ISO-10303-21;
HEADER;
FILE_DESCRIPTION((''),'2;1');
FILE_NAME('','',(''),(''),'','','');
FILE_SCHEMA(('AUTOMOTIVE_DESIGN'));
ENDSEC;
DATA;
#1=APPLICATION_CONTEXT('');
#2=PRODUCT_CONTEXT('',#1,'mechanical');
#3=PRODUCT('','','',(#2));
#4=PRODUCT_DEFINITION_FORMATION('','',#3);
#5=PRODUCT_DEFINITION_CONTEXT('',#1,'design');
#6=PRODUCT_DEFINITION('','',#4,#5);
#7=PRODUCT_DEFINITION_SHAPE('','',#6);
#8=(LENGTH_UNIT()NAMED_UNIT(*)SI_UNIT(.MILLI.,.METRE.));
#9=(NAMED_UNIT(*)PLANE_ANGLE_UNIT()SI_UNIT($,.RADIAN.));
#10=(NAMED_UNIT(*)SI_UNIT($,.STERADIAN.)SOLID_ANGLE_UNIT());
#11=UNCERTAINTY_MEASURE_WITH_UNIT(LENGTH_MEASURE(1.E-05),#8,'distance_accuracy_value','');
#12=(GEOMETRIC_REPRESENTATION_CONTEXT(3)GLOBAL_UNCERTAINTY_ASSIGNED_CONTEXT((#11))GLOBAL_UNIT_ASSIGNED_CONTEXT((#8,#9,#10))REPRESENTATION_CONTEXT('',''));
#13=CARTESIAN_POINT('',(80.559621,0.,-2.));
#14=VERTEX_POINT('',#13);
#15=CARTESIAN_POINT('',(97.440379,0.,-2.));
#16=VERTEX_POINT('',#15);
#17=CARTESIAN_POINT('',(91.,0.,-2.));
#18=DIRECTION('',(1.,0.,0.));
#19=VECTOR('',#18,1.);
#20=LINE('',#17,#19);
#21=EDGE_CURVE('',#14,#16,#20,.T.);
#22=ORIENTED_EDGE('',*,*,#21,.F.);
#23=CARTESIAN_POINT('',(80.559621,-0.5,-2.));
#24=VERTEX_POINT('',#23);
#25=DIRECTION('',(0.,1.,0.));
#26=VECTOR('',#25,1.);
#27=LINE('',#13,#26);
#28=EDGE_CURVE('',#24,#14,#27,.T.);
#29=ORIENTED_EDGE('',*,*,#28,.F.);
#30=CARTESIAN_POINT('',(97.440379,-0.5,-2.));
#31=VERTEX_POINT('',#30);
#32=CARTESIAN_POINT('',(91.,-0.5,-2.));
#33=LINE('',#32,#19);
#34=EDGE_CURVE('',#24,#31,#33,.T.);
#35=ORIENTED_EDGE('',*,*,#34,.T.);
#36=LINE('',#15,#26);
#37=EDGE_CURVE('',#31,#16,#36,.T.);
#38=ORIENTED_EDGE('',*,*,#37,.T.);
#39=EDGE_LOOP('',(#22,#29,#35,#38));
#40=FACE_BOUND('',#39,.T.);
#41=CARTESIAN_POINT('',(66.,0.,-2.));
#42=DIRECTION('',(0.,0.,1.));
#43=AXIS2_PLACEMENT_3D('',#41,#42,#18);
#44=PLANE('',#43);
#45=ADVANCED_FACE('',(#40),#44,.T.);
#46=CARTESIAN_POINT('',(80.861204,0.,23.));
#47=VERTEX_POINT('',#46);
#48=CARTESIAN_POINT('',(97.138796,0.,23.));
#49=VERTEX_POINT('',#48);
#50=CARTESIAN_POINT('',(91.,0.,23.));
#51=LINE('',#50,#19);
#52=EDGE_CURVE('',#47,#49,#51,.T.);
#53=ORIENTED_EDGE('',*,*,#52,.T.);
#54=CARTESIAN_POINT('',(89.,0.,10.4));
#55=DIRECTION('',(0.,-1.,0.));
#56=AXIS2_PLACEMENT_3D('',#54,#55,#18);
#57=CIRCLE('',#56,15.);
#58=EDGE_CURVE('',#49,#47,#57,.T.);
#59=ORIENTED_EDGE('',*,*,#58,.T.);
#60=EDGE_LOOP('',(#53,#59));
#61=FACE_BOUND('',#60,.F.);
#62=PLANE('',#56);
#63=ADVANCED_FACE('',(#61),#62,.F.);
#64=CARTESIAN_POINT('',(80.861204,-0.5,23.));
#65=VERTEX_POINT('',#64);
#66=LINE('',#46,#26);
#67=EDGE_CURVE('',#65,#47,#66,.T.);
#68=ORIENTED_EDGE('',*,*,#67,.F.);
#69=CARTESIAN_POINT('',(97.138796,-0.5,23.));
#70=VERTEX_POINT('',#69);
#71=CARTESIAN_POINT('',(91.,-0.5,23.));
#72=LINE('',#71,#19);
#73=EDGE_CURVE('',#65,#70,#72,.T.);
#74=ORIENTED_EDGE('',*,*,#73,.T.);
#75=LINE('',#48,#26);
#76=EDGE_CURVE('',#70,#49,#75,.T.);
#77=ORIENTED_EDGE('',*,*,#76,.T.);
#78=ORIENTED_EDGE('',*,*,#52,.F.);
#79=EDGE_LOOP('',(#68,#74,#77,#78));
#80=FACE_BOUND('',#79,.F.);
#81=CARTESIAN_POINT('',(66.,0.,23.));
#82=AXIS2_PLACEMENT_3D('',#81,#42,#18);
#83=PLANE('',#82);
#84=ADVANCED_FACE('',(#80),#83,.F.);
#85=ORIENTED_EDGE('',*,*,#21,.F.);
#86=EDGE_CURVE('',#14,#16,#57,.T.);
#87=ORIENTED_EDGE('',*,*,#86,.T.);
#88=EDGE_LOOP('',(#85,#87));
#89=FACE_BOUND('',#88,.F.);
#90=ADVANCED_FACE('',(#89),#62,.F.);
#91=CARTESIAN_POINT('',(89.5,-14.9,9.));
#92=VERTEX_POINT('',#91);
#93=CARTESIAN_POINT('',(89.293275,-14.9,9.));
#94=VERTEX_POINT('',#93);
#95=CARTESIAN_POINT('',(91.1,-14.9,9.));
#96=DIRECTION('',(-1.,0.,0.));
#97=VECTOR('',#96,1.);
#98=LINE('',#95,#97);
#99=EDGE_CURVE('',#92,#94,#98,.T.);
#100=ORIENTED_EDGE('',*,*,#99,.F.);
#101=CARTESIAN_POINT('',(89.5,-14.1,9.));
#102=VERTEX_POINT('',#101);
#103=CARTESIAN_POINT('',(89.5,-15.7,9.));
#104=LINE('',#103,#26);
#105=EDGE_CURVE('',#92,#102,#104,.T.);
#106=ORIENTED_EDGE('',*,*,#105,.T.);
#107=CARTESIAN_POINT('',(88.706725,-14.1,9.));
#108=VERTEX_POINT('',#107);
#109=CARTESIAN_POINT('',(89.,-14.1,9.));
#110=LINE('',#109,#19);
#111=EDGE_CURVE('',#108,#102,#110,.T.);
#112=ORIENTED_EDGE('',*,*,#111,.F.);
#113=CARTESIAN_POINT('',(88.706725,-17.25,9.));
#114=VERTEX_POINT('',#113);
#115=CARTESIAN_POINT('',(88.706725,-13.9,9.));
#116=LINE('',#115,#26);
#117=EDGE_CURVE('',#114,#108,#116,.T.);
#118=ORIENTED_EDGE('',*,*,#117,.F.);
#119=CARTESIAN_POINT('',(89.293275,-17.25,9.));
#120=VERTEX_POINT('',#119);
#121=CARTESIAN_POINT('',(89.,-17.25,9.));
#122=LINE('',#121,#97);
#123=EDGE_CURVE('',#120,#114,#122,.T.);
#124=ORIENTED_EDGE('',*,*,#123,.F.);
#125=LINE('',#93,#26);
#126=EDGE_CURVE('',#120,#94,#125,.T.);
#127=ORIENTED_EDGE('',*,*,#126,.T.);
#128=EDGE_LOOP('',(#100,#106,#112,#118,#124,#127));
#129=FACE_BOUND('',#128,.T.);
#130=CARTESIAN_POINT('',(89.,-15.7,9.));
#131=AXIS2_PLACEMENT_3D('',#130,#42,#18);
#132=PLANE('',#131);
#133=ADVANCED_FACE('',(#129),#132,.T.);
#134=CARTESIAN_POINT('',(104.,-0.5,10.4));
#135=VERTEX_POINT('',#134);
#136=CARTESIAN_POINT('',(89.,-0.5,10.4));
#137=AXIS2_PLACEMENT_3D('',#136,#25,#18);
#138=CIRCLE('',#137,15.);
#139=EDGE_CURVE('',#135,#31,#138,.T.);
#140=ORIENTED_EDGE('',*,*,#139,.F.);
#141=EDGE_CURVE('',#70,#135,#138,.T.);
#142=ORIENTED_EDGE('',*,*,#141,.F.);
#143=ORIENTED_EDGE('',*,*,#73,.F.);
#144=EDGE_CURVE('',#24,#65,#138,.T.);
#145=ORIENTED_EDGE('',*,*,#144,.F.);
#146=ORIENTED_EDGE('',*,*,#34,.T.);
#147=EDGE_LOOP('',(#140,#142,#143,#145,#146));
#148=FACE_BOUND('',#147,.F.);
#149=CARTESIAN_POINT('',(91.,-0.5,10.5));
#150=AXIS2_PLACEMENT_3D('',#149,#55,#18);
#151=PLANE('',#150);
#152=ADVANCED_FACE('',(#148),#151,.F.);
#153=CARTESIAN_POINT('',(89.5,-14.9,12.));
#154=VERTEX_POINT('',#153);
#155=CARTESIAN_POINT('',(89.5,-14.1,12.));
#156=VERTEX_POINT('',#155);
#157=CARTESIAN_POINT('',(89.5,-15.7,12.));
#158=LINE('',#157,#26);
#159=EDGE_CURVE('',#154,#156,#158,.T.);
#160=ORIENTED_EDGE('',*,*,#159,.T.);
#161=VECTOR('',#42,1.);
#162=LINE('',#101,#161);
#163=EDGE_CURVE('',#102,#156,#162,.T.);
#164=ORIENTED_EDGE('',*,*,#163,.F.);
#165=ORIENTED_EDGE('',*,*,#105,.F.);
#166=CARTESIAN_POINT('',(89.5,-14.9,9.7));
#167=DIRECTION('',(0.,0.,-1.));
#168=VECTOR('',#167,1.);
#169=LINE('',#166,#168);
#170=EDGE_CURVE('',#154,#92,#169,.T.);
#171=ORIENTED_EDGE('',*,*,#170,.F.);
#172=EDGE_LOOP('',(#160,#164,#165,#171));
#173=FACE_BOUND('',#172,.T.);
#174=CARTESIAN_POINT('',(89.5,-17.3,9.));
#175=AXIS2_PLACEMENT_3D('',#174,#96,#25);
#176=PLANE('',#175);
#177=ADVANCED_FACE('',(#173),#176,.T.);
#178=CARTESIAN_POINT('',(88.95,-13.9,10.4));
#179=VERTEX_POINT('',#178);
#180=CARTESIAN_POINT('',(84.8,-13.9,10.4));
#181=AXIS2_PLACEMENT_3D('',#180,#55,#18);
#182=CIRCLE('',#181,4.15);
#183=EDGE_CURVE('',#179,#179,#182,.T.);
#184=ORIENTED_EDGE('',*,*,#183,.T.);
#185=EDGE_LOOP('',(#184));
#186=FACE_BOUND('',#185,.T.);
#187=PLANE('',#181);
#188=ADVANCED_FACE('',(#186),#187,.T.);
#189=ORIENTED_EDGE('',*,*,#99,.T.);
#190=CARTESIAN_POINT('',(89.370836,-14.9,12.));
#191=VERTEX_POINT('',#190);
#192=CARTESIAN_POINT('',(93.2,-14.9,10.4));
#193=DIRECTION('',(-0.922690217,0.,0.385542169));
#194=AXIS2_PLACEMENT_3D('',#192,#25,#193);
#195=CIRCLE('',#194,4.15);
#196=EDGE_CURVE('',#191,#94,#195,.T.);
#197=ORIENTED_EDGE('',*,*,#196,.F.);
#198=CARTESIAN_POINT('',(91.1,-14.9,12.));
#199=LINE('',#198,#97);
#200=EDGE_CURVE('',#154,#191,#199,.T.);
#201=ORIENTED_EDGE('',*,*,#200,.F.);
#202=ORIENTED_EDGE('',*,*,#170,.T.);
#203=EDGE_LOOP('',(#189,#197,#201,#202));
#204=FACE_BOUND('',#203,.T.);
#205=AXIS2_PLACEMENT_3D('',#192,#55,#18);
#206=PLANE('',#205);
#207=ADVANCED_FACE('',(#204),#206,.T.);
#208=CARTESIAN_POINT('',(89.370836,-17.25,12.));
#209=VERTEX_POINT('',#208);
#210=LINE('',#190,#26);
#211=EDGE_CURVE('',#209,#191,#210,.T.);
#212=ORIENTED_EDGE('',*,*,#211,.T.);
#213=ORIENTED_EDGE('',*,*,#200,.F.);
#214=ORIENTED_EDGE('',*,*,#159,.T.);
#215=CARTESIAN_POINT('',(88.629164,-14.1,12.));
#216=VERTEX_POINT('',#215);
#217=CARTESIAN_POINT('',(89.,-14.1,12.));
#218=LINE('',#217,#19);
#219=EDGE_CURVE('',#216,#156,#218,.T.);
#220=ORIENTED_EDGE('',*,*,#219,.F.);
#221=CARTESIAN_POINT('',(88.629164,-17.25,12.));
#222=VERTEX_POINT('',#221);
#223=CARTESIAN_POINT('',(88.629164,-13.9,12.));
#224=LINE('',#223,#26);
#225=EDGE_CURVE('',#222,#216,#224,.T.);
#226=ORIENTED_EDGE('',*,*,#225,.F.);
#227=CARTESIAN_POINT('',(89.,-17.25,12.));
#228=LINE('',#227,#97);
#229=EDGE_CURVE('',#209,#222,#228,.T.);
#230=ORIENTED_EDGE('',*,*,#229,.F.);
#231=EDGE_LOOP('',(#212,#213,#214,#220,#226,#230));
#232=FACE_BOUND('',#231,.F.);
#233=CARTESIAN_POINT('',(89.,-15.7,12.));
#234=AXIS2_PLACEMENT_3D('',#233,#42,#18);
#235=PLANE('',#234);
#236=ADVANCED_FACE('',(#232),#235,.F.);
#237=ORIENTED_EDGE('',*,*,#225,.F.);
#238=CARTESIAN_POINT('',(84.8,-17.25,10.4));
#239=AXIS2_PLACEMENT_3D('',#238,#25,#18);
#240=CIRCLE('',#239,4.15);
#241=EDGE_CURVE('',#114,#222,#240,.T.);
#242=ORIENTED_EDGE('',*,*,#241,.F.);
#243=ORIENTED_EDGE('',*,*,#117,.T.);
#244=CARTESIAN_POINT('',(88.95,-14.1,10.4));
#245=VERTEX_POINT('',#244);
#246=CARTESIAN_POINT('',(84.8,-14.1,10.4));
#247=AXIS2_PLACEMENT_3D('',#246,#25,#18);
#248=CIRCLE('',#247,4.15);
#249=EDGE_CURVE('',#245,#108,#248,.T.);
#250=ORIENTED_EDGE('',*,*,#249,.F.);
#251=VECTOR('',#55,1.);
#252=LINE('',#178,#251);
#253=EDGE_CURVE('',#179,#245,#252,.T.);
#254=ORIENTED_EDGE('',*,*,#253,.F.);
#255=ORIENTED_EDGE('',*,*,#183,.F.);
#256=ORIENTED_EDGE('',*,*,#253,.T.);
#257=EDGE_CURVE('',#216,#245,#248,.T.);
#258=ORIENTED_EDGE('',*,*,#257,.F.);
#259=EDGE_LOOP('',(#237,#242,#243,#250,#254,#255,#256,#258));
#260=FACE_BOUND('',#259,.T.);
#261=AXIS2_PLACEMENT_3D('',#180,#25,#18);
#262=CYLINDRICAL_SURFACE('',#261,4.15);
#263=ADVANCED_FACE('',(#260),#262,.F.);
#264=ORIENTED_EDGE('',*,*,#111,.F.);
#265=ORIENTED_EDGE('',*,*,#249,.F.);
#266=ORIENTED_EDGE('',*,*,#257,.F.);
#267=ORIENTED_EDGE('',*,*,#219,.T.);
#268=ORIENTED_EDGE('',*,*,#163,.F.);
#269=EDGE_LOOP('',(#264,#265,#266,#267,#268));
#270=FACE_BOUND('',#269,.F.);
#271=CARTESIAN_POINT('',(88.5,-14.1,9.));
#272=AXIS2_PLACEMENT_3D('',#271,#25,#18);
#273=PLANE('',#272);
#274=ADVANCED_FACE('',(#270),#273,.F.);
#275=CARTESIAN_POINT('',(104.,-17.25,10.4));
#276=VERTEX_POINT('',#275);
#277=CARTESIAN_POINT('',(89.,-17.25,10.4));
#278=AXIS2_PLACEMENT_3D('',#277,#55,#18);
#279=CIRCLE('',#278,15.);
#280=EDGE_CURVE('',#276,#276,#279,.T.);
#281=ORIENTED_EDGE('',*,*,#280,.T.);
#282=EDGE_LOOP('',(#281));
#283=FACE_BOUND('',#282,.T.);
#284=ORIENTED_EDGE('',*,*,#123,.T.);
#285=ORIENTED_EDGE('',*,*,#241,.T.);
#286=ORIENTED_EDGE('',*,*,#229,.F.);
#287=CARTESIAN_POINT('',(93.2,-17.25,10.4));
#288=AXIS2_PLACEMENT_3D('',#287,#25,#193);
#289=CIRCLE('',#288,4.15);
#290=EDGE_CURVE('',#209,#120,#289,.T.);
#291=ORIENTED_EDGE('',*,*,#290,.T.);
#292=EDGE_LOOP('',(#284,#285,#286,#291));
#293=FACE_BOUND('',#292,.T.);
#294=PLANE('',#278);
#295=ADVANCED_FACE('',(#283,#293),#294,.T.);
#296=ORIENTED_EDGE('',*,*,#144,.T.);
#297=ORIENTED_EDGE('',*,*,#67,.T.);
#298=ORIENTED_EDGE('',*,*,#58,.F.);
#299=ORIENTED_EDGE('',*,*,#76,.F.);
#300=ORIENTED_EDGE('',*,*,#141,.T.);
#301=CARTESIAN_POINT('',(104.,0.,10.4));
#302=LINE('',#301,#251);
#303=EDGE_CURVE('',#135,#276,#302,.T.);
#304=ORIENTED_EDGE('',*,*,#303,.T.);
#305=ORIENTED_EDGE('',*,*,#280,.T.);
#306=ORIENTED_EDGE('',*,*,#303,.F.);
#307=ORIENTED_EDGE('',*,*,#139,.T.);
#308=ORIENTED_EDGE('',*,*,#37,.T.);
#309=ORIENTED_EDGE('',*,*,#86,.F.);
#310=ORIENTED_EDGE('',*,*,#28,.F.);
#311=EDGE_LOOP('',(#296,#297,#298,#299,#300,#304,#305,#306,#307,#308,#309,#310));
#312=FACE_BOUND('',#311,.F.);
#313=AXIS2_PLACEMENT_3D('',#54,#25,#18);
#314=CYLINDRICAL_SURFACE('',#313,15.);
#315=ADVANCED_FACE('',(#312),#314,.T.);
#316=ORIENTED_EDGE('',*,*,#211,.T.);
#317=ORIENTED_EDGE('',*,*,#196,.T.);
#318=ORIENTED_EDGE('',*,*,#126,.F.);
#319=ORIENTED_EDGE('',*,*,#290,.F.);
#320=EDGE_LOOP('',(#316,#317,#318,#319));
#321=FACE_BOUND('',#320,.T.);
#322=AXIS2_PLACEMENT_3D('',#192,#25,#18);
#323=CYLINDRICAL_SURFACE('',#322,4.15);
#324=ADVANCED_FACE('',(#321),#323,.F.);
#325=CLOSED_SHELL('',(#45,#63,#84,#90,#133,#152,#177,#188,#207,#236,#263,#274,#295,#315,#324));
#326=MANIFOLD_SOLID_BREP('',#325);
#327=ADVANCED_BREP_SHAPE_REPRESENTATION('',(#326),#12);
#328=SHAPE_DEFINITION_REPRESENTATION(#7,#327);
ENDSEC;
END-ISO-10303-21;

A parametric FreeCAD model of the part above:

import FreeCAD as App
import Part
import Sketcher
Q = App.Units.Quantity

doc = App.newDocument("Part")
body = doc.addObject("PartDesign::Body", "Body")

# Sketch on XY plane
sketch1 = body.newObject("Sketcher::SketchObject", "Sketch")
sketch1.AttachmentSupport = (doc.getObject("XY_Plane"), [""])
sketch1.MapMode = "FlatFace"
sketch1.AttachmentOffset = App.Placement(App.Vector(0, 0, 9), App.Rotation())
sketch1.addGeometry(Part.LineSegment(App.Vector(88.5, -14.1, 0), App.Vector(88.5, -17.3, 0)), False)
sketch1.addGeometry(Part.LineSegment(App.Vector(88.5, -17.3, 0), App.Vector(89.5, -17.3, 0)), False)
sketch1.addGeometry(Part.LineSegment(App.Vector(89.5, -17.3, 0), App.Vector(89.5, -14.1, 0)), False)
sketch1.addGeometry(Part.LineSegment(App.Vector(89.5, -14.1, 0), App.Vector(88.5, -14.1, 0)), False)
sketch1.addConstraint(Sketcher.Constraint("Coincident", 0, 2, 1, 1))
sketch1.addConstraint(Sketcher.Constraint("Coincident", 1, 2, 2, 1))
sketch1.addConstraint(Sketcher.Constraint("Coincident", 2, 2, 3, 1))
sketch1.addConstraint(Sketcher.Constraint("Coincident", 3, 2, 0, 1))
sketch1.addConstraint(Sketcher.Constraint("Vertical", 0))
sketch1.addConstraint(Sketcher.Constraint("Horizontal", 1))
sketch1.addConstraint(Sketcher.Constraint("Vertical", 2))
sketch1.addConstraint(Sketcher.Constraint("Horizontal", 3))
sketch1.addConstraint(Sketcher.Constraint("DistanceX", 1, 1, 1, 2, Q("1 mm")))
sketch1.addConstraint(Sketcher.Constraint("DistanceY", 0, 2, 0, 1, Q("3.2 mm")))
sketch1.addConstraint(Sketcher.Constraint("DistanceX", -1, 1, 0, 2, Q("88.5 mm")))
sketch1.addConstraint(Sketcher.Constraint("DistanceY", 0, 2, -1, 1, Q("17.3 mm")))
pad1 = body.newObject("PartDesign::Pad", "Pad")
pad1.Profile = sketch1
pad1.Length = 3
body2 = doc.addObject("PartDesign::Body", "Body001")

# Sketch on XZ plane
sketch2 = body2.newObject("Sketcher::SketchObject", "Sketch001")
sketch2.AttachmentSupport = (doc.getObject("XZ_Plane001"), [""])
sketch2.MapMode = "FlatFace"
sketch2.AttachmentOffset = App.Placement(App.Vector(0, 0, 14.9), App.Rotation())
sketch2.addGeometry(Part.Circle(App.Vector(93.2, 10.4, 0), App.Vector(0, 0, 1), 4.15), False)
sketch2.addConstraint(Sketcher.Constraint("Diameter", 0, Q("8.3 mm")))
sketch2.addConstraint(Sketcher.Constraint("DistanceX", -1, 1, 0, 3, Q("93.2 mm")))
sketch2.addConstraint(Sketcher.Constraint("DistanceY", -1, 1, 0, 3, Q("10.4 mm")))
pad2 = body2.newObject("PartDesign::Pad", "Pad001")
pad2.Profile = sketch2
pad2.Length = 10
body3 = doc.addObject("PartDesign::Body", "Body002")

# Sketch on XZ plane
sketch3 = body3.newObject("Sketcher::SketchObject", "Sketch002")
sketch3.AttachmentSupport = (doc.getObject("XZ_Plane002"), [""])
sketch3.MapMode = "FlatFace"
sketch3.AttachmentOffset = App.Placement(App.Vector(0, 0, 13.9), App.Rotation())
sketch3.addGeometry(Part.Circle(App.Vector(84.8, 10.4, 0), App.Vector(0, 0, 1), 4.15), False)
sketch3.addConstraint(Sketcher.Constraint("Diameter", 0, Q("8.3 mm")))
sketch3.addConstraint(Sketcher.Constraint("DistanceX", -1, 1, 0, 3, Q("84.8 mm")))
sketch3.addConstraint(Sketcher.Constraint("DistanceY", -1, 1, 0, 3, Q("10.4 mm")))
pad3 = body3.newObject("PartDesign::Pad", "Pad002")
pad3.Profile = sketch3
pad3.Length = 10
body4 = doc.addObject("PartDesign::Body", "Body003")

# Sketch on XZ plane
sketch4 = body4.newObject("Sketcher::SketchObject", "Sketch003")
sketch4.AttachmentSupport = (doc.getObject("XZ_Plane003"), [""])
sketch4.MapMode = "FlatFace"
sketch4.addGeometry(Part.LineSegment(App.Vector(66, 23, 0), App.Vector(66, -2, 0)), False)
sketch4.addGeometry(Part.LineSegment(App.Vector(66, -2, 0), App.Vector(116, -2, 0)), False)
sketch4.addGeometry(Part.LineSegment(App.Vector(116, -2, 0), App.Vector(116, 23, 0)), False)
sketch4.addGeometry(Part.LineSegment(App.Vector(116, 23, 0), App.Vector(66, 23, 0)), False)
sketch4.addConstraint(Sketcher.Constraint("Coincident", 0, 2, 1, 1))
sketch4.addConstraint(Sketcher.Constraint("Coincident", 1, 2, 2, 1))
sketch4.addConstraint(Sketcher.Constraint("Coincident", 2, 2, 3, 1))
sketch4.addConstraint(Sketcher.Constraint("Coincident", 3, 2, 0, 1))
sketch4.addConstraint(Sketcher.Constraint("Vertical", 0))
sketch4.addConstraint(Sketcher.Constraint("Horizontal", 1))
sketch4.addConstraint(Sketcher.Constraint("Vertical", 2))
sketch4.addConstraint(Sketcher.Constraint("Horizontal", 3))
sketch4.addConstraint(Sketcher.Constraint("DistanceX", 1, 1, 1, 2, Q("50 mm")))
sketch4.addConstraint(Sketcher.Constraint("DistanceY", 0, 2, 0, 1, Q("25 mm")))
sketch4.addConstraint(Sketcher.Constraint("DistanceX", -1, 1, 0, 2, Q("66 mm")))
sketch4.addConstraint(Sketcher.Constraint("DistanceY", 0, 2, -1, 1, Q("2 mm")))
pad4 = body4.newObject("PartDesign::Pad", "Pad003")
pad4.Profile = sketch4
pad4.Length = 0.5
body5 = doc.addObject("PartDesign::Body", "Body004")

# Sketch on XZ plane
sketch5 = body5.newObject("Sketcher::SketchObject", "Sketch004")
sketch5.AttachmentSupport = (doc.getObject("XZ_Plane004"), [""])
sketch5.MapMode = "FlatFace"
sketch5.addGeometry(Part.Circle(App.Vector(89, 10.4, 0), App.Vector(0, 0, 1), 15), False)
sketch5.addConstraint(Sketcher.Constraint("Diameter", 0, Q("30 mm")))
sketch5.addConstraint(Sketcher.Constraint("DistanceX", -1, 1, 0, 3, Q("89 mm")))
sketch5.addConstraint(Sketcher.Constraint("DistanceY", -1, 1, 0, 3, Q("10.4 mm")))
pad5 = body5.newObject("PartDesign::Pad", "Pad004")
pad5.Profile = sketch5
pad5.Length = 17.25
doc.recompute()

boolean = body5.newObject("PartDesign::Boolean", "Boolean")
boolean.Type = "Cut"
boolean.addObjects([body4])
doc.recompute()

boolean2 = body5.newObject("PartDesign::Boolean", "Boolean001")
boolean2.Type = "Cut"
boolean2.addObjects([body3])
doc.recompute()

boolean3 = body5.newObject("PartDesign::Boolean", "Boolean002")
boolean3.Type = "Cut"
boolean3.addObjects([body2])
doc.recompute()

boolean4 = body5.newObject("PartDesign::Boolean", "Boolean003")
boolean4.Type = "Cut"
boolean4.addObjects([body])

doc.recompute()
